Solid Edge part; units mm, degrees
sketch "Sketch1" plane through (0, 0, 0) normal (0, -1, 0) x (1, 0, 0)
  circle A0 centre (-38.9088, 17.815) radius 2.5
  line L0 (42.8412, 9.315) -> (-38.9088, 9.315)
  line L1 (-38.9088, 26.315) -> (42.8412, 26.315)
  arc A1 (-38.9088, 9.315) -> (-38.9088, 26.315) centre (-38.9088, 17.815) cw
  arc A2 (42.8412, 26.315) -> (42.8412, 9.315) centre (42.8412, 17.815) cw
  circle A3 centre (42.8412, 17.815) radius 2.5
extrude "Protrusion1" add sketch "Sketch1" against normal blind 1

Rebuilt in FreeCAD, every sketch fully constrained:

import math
import FreeCAD as App
import Part
import Sketcher

doc = App.newDocument("Part")
params = doc.addObject("Spreadsheet::Sheet", "Params")
for row, (alias, value) in enumerate([
    ("sketch1_diameter", "5 mm"),
    ("sketch1_radius", "8.5 mm"),
    ("sketch1_width", "81.75 mm"),
    ("pad1_length", "1 mm"),
], start=1):
    params.set(f"A{row}", alias)
    params.set(f"B{row}", "=" + value)
    params.setAlias(f"B{row}", alias)

body = doc.addObject("PartDesign::Body", "Body")

# Sketch on XZ plane
sketch1 = doc.addObject("Sketcher::SketchObject", "Sketch")
body.addObject(sketch1)
sketch1.AttachmentSupport = (doc.XZ_Plane, [""])
sketch1.MapMode = "FlatFace"
sketch1.addGeometry([
    Part.LineSegment(App.Vector(-38.9, 9.3, 0), App.Vector(42.8, 9.3, 0)),  # 0
    Part.ArcOfCircle(Part.Circle(App.Vector(42.8, 17.8, 0), App.Vector(0, 0, 1), 8.5), math.radians(-90), math.radians(90)),  # 1
    Part.LineSegment(App.Vector(42.8, 26.3, 0), App.Vector(-38.9, 26.3, 0)),  # 2
    Part.ArcOfCircle(Part.Circle(App.Vector(-38.9, 17.8, 0), App.Vector(0, 0, 1), 8.5), math.radians(90), math.radians(270)),  # 3
    Part.Circle(App.Vector(-38.9, 17.8, 0), App.Vector(0, 0, 1), 2.5),  # 4
    Part.Circle(App.Vector(42.8, 17.8, 0), App.Vector(0, 0, 1), 2.5),  # 5
], False)
sketch1.addConstraint([
    Sketcher.Constraint("Tangent", 0, 2, 1, 1),
    Sketcher.Constraint("Tangent", 1, 2, 2, 1),
    Sketcher.Constraint("Tangent", 2, 2, 3, 1),
    Sketcher.Constraint("Tangent", 3, 2, 0, 1),
    Sketcher.Constraint("Horizontal", 0),
    Sketcher.Constraint("Horizontal", 2),
    Sketcher.Constraint("Coincident", 4, 3, 3, 3),
    Sketcher.Constraint("Coincident", 5, 3, 1, 3),
    Sketcher.Constraint("Equal", 4, 5),
    Sketcher.Constraint("Diameter", 4, 5.0),
    Sketcher.Constraint("Radius", 1, 8.5),
    Sketcher.Constraint("DistanceX", 0, 1, 0, 2, 81.75),
    Sketcher.Constraint("DistanceY", -1, 1, 1, 3, 17.815),
    Sketcher.Constraint("DistanceX", -1, 1, 1, 3, 42.8412),
])
sketch1.setExpression("Constraints[9]", "Params.sketch1_diameter")
sketch1.setExpression("Constraints[10]", "Params.sketch1_radius")
sketch1.setExpression("Constraints[11]", "Params.sketch1_width")
pad1 = doc.addObject("PartDesign::Pad", "Pad")
body.addObject(pad1)
pad1.Profile = sketch1
pad1.setExpression("Length", "Params.pad1_length")
pad1.Reversed = True

doc.recompute()
